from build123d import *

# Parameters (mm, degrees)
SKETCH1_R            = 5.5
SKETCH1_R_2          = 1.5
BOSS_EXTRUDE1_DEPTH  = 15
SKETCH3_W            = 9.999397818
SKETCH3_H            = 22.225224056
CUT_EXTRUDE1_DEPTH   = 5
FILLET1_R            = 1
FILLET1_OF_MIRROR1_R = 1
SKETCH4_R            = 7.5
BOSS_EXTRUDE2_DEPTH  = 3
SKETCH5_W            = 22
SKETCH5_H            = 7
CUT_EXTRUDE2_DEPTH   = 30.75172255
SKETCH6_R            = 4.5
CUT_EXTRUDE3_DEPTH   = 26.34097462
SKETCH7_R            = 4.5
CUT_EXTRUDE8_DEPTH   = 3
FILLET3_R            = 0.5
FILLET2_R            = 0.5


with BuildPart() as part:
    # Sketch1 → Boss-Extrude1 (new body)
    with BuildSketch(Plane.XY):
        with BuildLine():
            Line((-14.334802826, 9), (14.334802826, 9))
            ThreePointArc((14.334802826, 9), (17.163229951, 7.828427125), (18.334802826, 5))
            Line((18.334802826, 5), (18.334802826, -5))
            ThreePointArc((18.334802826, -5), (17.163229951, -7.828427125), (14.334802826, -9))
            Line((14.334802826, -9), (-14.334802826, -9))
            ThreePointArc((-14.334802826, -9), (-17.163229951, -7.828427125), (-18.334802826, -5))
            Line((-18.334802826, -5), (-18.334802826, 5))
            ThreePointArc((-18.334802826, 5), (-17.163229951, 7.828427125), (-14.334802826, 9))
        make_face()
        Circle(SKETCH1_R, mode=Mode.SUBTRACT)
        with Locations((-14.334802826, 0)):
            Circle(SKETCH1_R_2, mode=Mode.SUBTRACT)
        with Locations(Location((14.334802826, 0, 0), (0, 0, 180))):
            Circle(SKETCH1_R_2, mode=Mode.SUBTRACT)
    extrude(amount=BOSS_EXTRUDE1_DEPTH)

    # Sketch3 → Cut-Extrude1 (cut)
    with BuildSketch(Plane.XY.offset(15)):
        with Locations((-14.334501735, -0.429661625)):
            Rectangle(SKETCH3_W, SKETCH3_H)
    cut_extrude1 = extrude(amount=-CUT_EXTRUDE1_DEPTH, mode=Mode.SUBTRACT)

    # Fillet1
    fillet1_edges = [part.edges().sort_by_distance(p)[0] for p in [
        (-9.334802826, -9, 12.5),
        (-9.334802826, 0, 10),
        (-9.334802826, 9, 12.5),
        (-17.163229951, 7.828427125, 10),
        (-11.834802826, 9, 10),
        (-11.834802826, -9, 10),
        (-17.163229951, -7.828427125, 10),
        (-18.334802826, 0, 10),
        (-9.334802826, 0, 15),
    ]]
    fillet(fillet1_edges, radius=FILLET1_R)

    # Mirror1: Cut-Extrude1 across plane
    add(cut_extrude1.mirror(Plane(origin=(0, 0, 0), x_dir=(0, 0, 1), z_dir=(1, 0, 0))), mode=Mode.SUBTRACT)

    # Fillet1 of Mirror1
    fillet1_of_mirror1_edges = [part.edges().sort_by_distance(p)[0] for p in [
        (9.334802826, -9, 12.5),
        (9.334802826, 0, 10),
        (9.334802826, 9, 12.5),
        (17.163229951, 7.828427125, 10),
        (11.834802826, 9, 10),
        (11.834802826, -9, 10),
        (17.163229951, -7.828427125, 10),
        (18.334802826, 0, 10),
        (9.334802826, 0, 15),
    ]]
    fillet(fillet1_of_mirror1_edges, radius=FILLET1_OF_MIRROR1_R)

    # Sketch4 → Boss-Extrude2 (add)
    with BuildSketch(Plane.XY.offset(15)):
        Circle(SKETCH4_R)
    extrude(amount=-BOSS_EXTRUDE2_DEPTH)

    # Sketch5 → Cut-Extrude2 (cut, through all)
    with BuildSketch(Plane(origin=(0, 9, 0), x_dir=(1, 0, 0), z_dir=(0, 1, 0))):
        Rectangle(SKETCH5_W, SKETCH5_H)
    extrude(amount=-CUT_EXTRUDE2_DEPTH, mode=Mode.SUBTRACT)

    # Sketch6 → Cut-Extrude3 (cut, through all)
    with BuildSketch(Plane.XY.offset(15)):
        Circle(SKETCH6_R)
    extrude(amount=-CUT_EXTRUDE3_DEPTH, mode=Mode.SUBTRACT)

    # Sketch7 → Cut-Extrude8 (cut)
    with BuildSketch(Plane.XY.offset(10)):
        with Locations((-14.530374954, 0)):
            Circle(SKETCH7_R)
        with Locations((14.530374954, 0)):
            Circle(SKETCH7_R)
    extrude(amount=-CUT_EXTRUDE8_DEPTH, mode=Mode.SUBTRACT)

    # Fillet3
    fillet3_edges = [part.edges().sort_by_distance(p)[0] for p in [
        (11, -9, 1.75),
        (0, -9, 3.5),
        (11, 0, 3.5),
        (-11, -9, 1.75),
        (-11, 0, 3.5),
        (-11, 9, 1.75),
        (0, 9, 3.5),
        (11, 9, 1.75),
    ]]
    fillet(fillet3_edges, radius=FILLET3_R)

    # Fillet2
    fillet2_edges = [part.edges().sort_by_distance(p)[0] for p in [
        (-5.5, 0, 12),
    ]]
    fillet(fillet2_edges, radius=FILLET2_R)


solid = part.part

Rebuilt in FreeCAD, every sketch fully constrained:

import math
import FreeCAD as App
import Part
import Sketcher
Q = App.Units.Quantity


def edges_at(feature, points):
    """Names of the edges that pass closest to the given points."""
    edges = feature.Shape.Edges
    near = lambda p: min(range(len(edges)), key=lambda i: edges[i].distToShape(Part.Vertex(*p))[0])
    return sorted({f"Edge{near(p) + 1}" for p in points})


def add_polygon(sketch, points):
    """Adds a closed chain of lines whose ends are joined by coincident constraints."""
    first, n = sketch.GeometryCount, len(points)
    for a, b in zip(points, points[1:] + points[:1]):
        sketch.addGeometry(Part.LineSegment(App.Vector(*a, 0), App.Vector(*b, 0)), False)
    for i in range(n):
        sketch.addConstraint(Sketcher.Constraint("Coincident", first + i, 2, first + (i + 1) % n, 1))

doc = App.newDocument("Part")
body = doc.addObject("PartDesign::Body", "Body")

sketch1 = doc.addObject("Sketcher::SketchObject", "Sketch")
body.addObject(sketch1)
sketch1.AttachmentSupport = (doc.XY_Plane, [""])
sketch1.MapMode = "FlatFace"
sketch1.addGeometry([
    Part.LineSegment(App.Vector(14.3, 9, 0), App.Vector(-14.3, 9, 0)),
    Part.ArcOfCircle(Part.Circle(App.Vector(-14.3, 5, 0), App.Vector(0, 0, 1), 4), math.radians(90), math.radians(180)),
    Part.LineSegment(App.Vector(-18.3, 5, 0), App.Vector(-18.3, -5, 0)),
    Part.ArcOfCircle(Part.Circle(App.Vector(-14.3, -5, 0), App.Vector(0, 0, 1), 4), math.radians(180), math.radians(270)),
    Part.LineSegment(App.Vector(-14.3, -9, 0), App.Vector(14.3, -9, 0)),
    Part.ArcOfCircle(Part.Circle(App.Vector(14.3, -5, 0), App.Vector(0, 0, 1), 4), math.radians(-90), math.radians(0)),
    Part.LineSegment(App.Vector(18.3, -5, 0), App.Vector(18.3, 5, 0)),
    Part.ArcOfCircle(Part.Circle(App.Vector(14.3, 5, 0), App.Vector(0, 0, 1), 4), math.radians(0), math.radians(90)),
    Part.Circle(App.Vector(14.3, 0, 0), App.Vector(0, 0, 1), 1.5),
    Part.Circle(App.Vector(0, 0, 0), App.Vector(0, 0, 1), 5.5),
    Part.Circle(App.Vector(-14.3, 0, 0), App.Vector(0, 0, 1), 1.5),
], False)
sketch1.addConstraint([
    Sketcher.Constraint("Tangent", 0, 2, 1, 1),
    Sketcher.Constraint("Tangent", 1, 2, 2, 1),
    Sketcher.Constraint("Tangent", 2, 2, 3, 1),
    Sketcher.Constraint("Tangent", 3, 2, 4, 1),
    Sketcher.Constraint("Tangent", 4, 2, 5, 1),
    Sketcher.Constraint("Tangent", 5, 2, 6, 1),
    Sketcher.Constraint("Tangent", 6, 2, 7, 1),
    Sketcher.Constraint("Tangent", 7, 2, 0, 1),
    Sketcher.Constraint("Horizontal", 0),
    Sketcher.Constraint("Vertical", 2),
    Sketcher.Constraint("Horizontal", 4),
    Sketcher.Constraint("Vertical", 6),
    Sketcher.Constraint("Coincident", 9, 3, -1, 1),
    Sketcher.Constraint("Equal", 1, 3),
    Sketcher.Constraint("Equal", 3, 5),
    Sketcher.Constraint("Equal", 5, 7),
    Sketcher.Constraint("Equal", 8, 10),
    Sketcher.Constraint("Symmetric", 1, 3, 5, 3, -1, 1),
    Sketcher.Constraint("Symmetric", 8, 3, 10, 3, -1, 1),
    Sketcher.Constraint("PointOnObject", 8, 3, -1),
    Sketcher.Constraint("Vertical", 7, 3, 8, 3),
    Sketcher.Constraint("Diameter", 8, Q("3 mm")),
    Sketcher.Constraint("Diameter", 9, Q("11 mm")),
    Sketcher.Constraint("Radius", 1, Q("4 mm")),
    Sketcher.Constraint("DistanceY", 2, 2, 2, 1, Q("10 mm")),
    Sketcher.Constraint("DistanceX", 0, 2, 0, 1, Q("28.669606 mm")),
])
pad1 = doc.addObject("PartDesign::Pad", "Pad")
body.addObject(pad1)
pad1.Profile = sketch1
pad1.Length = 15

sketch2 = doc.addObject("Sketcher::SketchObject", "Sketch001")
body.addObject(sketch2)
sketch2.AttachmentSupport = (doc.XY_Plane, [""])
sketch2.MapMode = "FlatFace"
sketch2.AttachmentOffset = App.Placement(App.Vector(0, 0, 15), App.Rotation())
add_polygon(sketch2, [(-19, 11), (-19, -12), (-9, -12), (-9, 11)])
sketch2.addConstraint([
    Sketcher.Constraint("Vertical", 0),
    Sketcher.Constraint("Horizontal", 1),
    Sketcher.Constraint("Vertical", 2),
    Sketcher.Constraint("Horizontal", 3),
    Sketcher.Constraint("DistanceX", 0, 2, -1, 1, Q("19.334201 mm")),
    Sketcher.Constraint("DistanceX", 1, 1, 1, 2, Q("9.999398 mm")),
    Sketcher.Constraint("DistanceY", 0, 2, 0, 1, Q("22.225224 mm")),
    Sketcher.Constraint("DistanceY", -1, 1, 2, 2, Q("10.68295 mm")),
])
pocket1 = doc.addObject("PartDesign::Pocket", "Pocket")
body.addObject(pocket1)
pocket1.Profile = sketch2
pocket1.Length = 5
doc.recompute()

fillet = doc.addObject("PartDesign::Fillet", "Fillet")
body.addObject(fillet)
fillet.Base = (pocket1, edges_at(pocket1, [
    (-9.335, -9, 12.5),
    (-9.335, 0, 10),
    (-9.335, 9, 12.5),
    (-17.163, 7.828, 10),
    (-11.835, 9, 10),
    (-11.835, -9, 10),
    (-17.163, -7.828, 10),
    (-18.335, 0, 10),
    (-9.335, 0, 15),
]))
fillet.Radius = 1
doc.recompute()

mirrored = doc.addObject("PartDesign::Mirrored", "Mirrored")
body.addObject(mirrored)
mirrored.Originals = [pocket1]
mirrored.MirrorPlane = (doc.YZ_Plane, [""])
body.Tip = mirrored
doc.recompute()

fillet2 = doc.addObject("PartDesign::Fillet", "Fillet001")
body.addObject(fillet2)
fillet2.Base = (mirrored, edges_at(mirrored, [
    (9.335, -9, 12.5),
    (9.335, 0, 10),
    (9.335, 9, 12.5),
    (17.163, 7.828, 10),
    (11.835, 9, 10),
    (11.835, -9, 10),
    (17.163, -7.828, 10),
    (18.335, 0, 10),
    (9.335, 0, 15),
]))
fillet2.Radius = 1

sketch3 = doc.addObject("Sketcher::SketchObject", "Sketch002")
body.addObject(sketch3)
sketch3.AttachmentSupport = (doc.XY_Plane, [""])
sketch3.MapMode = "FlatFace"
sketch3.AttachmentOffset = App.Placement(App.Vector(0, 0, 15), App.Rotation())
sketch3.addGeometry(Part.Circle(App.Vector(0, 0, 0), App.Vector(0, 0, 1), 8), False)
sketch3.addConstraint([
    Sketcher.Constraint("Coincident", 0, 3, -1, 1),
    Sketcher.Constraint("Diameter", 0, Q("15 mm")),
])
pad2 = doc.addObject("PartDesign::Pad", "Pad001")
body.addObject(pad2)
pad2.Profile = sketch3
pad2.Length = 3
pad2.Reversed = True

sketch4 = doc.addObject("Sketcher::SketchObject", "Sketch003")
body.addObject(sketch4)
sketch4.AttachmentSupport = (doc.XZ_Plane, [""])
sketch4.MapMode = "FlatFace"
sketch4.AttachmentOffset = App.Placement(App.Vector(0, 0, -9), App.Rotation())
add_polygon(sketch4, [(-11, -4), (-11, 4), (11, 4), (11, -4)])
sketch4.addConstraint([
    Sketcher.Constraint("Vertical", 0),
    Sketcher.Constraint("Horizontal", 1),
    Sketcher.Constraint("Vertical", 2),
    Sketcher.Constraint("Horizontal", 3),
    Sketcher.Constraint("Symmetric", 0, 2, 2, 2, -1, 1),
    Sketcher.Constraint("DistanceX", 1, 1, 1, 2, Q("22 mm")),
    Sketcher.Constraint("DistanceY", 0, 1, 0, 2, Q("7 mm")),
])
pocket2 = doc.addObject("PartDesign::Pocket", "Pocket001")
body.addObject(pocket2)
pocket2.Profile = sketch4
pocket2.Type = "ThroughAll"
pocket2.Reversed = True

sketch5 = doc.addObject("Sketcher::SketchObject", "Sketch004")
body.addObject(sketch5)
sketch5.AttachmentSupport = (doc.XY_Plane, [""])
sketch5.MapMode = "FlatFace"
sketch5.AttachmentOffset = App.Placement(App.Vector(0, 0, 15), App.Rotation())
sketch5.addGeometry(Part.Circle(App.Vector(0, 0, 0), App.Vector(0, 0, 1), 4.5), False)
sketch5.addConstraint([
    Sketcher.Constraint("Coincident", 0, 3, -1, 1),
    Sketcher.Constraint("Diameter", 0, Q("9 mm")),
])
pocket3 = doc.addObject("PartDesign::Pocket", "Pocket002")
body.addObject(pocket3)
pocket3.Profile = sketch5
pocket3.Type = "ThroughAll"

sketch6 = doc.addObject("Sketcher::SketchObject", "Sketch005")
body.addObject(sketch6)
sketch6.AttachmentSupport = (doc.XY_Plane, [""])
sketch6.MapMode = "FlatFace"
sketch6.AttachmentOffset = App.Placement(App.Vector(0, 0, 10), App.Rotation())
sketch6.addGeometry([
    Part.Circle(App.Vector(-14.5, 0, 0), App.Vector(0, 0, 1), 4.5),
    Part.Circle(App.Vector(14.5, 0, 0), App.Vector(0, 0, 1), 4.5),
], False)
sketch6.addConstraint([
    Sketcher.Constraint("Equal", 0, 1),
    Sketcher.Constraint("Symmetric", 0, 3, 1, 3, -1, 1),
    Sketcher.Constraint("PointOnObject", 0, 3, -1),
    Sketcher.Constraint("Diameter", 0, Q("9 mm")),
    Sketcher.Constraint("DistanceX", 0, 3, 1, 3, Q("29.06075 mm")),
])
pocket4 = doc.addObject("PartDesign::Pocket", "Pocket003")
body.addObject(pocket4)
pocket4.Profile = sketch6
pocket4.Length = 3
doc.recompute()

fillet3 = doc.addObject("PartDesign::Fillet", "Fillet002")
body.addObject(fillet3)
fillet3.Base = (pocket4, edges_at(pocket4, [
    (11, -9, 1.75),
    (0, -9, 3.5),
    (11, 0, 3.5),
    (-11, -9, 1.75),
    (-11, 0, 3.5),
    (-11, 9, 1.75),
    (0, 9, 3.5),
    (11, 9, 1.75),
]))
fillet3.Radius = 0.5
doc.recompute()

fillet4 = doc.addObject("PartDesign::Fillet", "Fillet003")
body.addObject(fillet4)
fillet4.Base = (fillet3, edges_at(fillet3, [(-5.5, 0, 12)]))
fillet4.Radius = 0.5

doc.recompute()
